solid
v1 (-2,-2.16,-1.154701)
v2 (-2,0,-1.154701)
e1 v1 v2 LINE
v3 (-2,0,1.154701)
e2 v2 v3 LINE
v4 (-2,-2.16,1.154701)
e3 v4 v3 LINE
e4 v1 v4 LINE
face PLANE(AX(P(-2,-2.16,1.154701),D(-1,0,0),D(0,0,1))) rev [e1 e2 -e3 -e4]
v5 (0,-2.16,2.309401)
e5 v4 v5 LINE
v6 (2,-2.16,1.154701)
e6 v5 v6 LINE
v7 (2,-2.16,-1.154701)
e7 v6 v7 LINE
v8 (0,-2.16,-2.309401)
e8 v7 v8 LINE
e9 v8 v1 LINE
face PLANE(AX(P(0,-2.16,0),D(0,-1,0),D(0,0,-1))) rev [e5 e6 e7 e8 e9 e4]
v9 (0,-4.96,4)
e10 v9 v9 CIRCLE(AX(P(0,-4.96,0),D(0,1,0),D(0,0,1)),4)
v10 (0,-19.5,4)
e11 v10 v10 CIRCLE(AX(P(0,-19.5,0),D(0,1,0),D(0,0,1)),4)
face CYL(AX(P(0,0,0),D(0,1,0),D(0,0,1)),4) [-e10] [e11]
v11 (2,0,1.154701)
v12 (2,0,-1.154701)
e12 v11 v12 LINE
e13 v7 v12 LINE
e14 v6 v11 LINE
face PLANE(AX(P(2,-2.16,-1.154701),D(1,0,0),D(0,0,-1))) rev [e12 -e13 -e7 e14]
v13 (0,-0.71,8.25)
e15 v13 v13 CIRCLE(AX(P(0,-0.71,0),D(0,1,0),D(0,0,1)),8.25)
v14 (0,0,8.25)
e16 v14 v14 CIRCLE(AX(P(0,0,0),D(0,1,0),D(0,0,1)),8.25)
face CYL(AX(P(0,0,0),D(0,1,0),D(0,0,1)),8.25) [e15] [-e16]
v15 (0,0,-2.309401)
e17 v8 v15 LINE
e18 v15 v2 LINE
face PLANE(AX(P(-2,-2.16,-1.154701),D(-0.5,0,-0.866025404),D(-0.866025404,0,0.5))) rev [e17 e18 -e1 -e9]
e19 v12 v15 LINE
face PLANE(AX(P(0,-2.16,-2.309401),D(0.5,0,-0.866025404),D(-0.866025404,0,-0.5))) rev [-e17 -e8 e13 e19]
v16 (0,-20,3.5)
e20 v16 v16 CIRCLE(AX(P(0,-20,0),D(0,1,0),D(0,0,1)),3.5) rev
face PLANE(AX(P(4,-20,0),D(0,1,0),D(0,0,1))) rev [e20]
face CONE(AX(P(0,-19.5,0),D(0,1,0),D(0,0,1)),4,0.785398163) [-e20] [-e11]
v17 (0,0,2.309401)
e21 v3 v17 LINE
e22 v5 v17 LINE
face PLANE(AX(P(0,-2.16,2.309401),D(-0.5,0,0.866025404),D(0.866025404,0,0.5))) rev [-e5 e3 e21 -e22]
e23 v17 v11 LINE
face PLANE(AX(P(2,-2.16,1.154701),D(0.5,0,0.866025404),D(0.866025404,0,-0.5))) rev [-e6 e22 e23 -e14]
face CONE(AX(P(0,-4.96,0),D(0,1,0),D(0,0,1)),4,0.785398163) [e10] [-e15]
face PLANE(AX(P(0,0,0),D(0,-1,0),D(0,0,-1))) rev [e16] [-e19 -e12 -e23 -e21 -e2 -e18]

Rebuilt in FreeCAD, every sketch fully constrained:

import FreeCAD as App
import Part
import Sketcher
Q = App.Units.Quantity


def edges_at(feature, points):
    """Names of the edges that pass closest to the given points."""
    edges = feature.Shape.Edges
    near = lambda p: min(range(len(edges)), key=lambda i: edges[i].distToShape(Part.Vertex(*p))[0])
    return sorted({f"Edge{near(p) + 1}" for p in points})


def add_polygon(sketch, points):
    """Adds a closed chain of lines whose ends are joined by coincident constraints."""
    first, n = sketch.GeometryCount, len(points)
    for a, b in zip(points, points[1:] + points[:1]):
        sketch.addGeometry(Part.LineSegment(App.Vector(*a, 0), App.Vector(*b, 0)), False)
    for i in range(n):
        sketch.addConstraint(Sketcher.Constraint("Coincident", first + i, 2, first + (i + 1) % n, 1))

doc = App.newDocument("Part")
body = doc.addObject("PartDesign::Body", "Body")

# Sketch on XY plane
sketch1 = doc.addObject("Sketcher::SketchObject", "Sketch")
body.addObject(sketch1)
sketch1.AttachmentSupport = (doc.XY_Plane, [""])
sketch1.MapMode = "FlatFace"
add_polygon(sketch1, [(8.2, 0), (0, 0), (0, -20), (4, -20), (4, -5), (8.2, -0.7)])  # lines 0-5
sketch1.addConstraint(Sketcher.Constraint("Horizontal", 0))
sketch1.addConstraint(Sketcher.Constraint("Vertical", 1))
sketch1.addConstraint(Sketcher.Constraint("Horizontal", 2))
sketch1.addConstraint(Sketcher.Constraint("Vertical", 3))
sketch1.addConstraint(Sketcher.Constraint("Vertical", 5))
sketch1.addConstraint(Sketcher.Constraint("Coincident", 0, 2, -1, 1))
sketch1.addConstraint(Sketcher.Constraint("DistanceX", 2, 1, 2, 2, Q("4 mm")))
sketch1.addConstraint(Sketcher.Constraint("DistanceY", 1, 2, 1, 1, Q("20 mm")))
sketch1.addConstraint(Sketcher.Constraint("Angle", 4, Q("45 deg")))
sketch1.addConstraint(Sketcher.Constraint("DistanceX", 0, 2, 0, 1, Q("8.25 mm")))
sketch1.addConstraint(Sketcher.Constraint("DistanceY", 3, 1, 3, 2, Q("15.04 mm")))
revolution = doc.addObject("PartDesign::Revolution", "Revolution")
body.addObject(revolution)
revolution.Profile = sketch1
revolution.ReferenceAxis = (sketch1, ["V_Axis"])
revolution.Angle = 360

# Sketch on XZ plane
sketch2 = doc.addObject("Sketcher::SketchObject", "Sketch001")
body.addObject(sketch2)
sketch2.AttachmentSupport = (doc.XZ_Plane, [""])
sketch2.MapMode = "FlatFace"
add_polygon(sketch2, [(2, -1.2), (0, -2.3), (-2, -1.2), (-2, 1.2), (0, 2.3), (2, 1.2)])  # lines 0-5
sketch2.addConstraint(Sketcher.Constraint("Vertical", 2))
sketch2.addConstraint(Sketcher.Constraint("Vertical", 5))
sketch2.addConstraint(Sketcher.Constraint("Symmetric", 0, 2, 3, 2, -1, 1))
sketch2.addConstraint(Sketcher.Constraint("Symmetric", 1, 2, 4, 2, -1, 1))
sketch2.addConstraint(Sketcher.Constraint("PointOnObject", 0, 2, -2))
sketch2.addConstraint(Sketcher.Constraint("Parallel", 0, 3))
sketch2.addConstraint(Sketcher.Constraint("Horizontal", 2, 2, 4, 2))
sketch2.addConstraint(Sketcher.Constraint("Angle", 0, Q("-150 deg")))
sketch2.addConstraint(Sketcher.Constraint("DistanceX", 1, 2, -1, 1, Q("2 mm")))
sketch2.addConstraint(Sketcher.Constraint("DistanceY", 2, 1, 2, 2, Q("2.309401 mm")))
pocket1 = doc.addObject("PartDesign::Pocket", "Pocket")
body.addObject(pocket1)
pocket1.Profile = sketch2
pocket1.Length = 2.16
pocket1.Reversed = True
doc.recompute()

chamfer = doc.addObject("PartDesign::Chamfer", "Chamfer")
body.addObject(chamfer)
chamfer.Base = (pocket1, edges_at(pocket1, [(0, -20, -4)]))
chamfer.Size = 0.5

doc.recompute()
